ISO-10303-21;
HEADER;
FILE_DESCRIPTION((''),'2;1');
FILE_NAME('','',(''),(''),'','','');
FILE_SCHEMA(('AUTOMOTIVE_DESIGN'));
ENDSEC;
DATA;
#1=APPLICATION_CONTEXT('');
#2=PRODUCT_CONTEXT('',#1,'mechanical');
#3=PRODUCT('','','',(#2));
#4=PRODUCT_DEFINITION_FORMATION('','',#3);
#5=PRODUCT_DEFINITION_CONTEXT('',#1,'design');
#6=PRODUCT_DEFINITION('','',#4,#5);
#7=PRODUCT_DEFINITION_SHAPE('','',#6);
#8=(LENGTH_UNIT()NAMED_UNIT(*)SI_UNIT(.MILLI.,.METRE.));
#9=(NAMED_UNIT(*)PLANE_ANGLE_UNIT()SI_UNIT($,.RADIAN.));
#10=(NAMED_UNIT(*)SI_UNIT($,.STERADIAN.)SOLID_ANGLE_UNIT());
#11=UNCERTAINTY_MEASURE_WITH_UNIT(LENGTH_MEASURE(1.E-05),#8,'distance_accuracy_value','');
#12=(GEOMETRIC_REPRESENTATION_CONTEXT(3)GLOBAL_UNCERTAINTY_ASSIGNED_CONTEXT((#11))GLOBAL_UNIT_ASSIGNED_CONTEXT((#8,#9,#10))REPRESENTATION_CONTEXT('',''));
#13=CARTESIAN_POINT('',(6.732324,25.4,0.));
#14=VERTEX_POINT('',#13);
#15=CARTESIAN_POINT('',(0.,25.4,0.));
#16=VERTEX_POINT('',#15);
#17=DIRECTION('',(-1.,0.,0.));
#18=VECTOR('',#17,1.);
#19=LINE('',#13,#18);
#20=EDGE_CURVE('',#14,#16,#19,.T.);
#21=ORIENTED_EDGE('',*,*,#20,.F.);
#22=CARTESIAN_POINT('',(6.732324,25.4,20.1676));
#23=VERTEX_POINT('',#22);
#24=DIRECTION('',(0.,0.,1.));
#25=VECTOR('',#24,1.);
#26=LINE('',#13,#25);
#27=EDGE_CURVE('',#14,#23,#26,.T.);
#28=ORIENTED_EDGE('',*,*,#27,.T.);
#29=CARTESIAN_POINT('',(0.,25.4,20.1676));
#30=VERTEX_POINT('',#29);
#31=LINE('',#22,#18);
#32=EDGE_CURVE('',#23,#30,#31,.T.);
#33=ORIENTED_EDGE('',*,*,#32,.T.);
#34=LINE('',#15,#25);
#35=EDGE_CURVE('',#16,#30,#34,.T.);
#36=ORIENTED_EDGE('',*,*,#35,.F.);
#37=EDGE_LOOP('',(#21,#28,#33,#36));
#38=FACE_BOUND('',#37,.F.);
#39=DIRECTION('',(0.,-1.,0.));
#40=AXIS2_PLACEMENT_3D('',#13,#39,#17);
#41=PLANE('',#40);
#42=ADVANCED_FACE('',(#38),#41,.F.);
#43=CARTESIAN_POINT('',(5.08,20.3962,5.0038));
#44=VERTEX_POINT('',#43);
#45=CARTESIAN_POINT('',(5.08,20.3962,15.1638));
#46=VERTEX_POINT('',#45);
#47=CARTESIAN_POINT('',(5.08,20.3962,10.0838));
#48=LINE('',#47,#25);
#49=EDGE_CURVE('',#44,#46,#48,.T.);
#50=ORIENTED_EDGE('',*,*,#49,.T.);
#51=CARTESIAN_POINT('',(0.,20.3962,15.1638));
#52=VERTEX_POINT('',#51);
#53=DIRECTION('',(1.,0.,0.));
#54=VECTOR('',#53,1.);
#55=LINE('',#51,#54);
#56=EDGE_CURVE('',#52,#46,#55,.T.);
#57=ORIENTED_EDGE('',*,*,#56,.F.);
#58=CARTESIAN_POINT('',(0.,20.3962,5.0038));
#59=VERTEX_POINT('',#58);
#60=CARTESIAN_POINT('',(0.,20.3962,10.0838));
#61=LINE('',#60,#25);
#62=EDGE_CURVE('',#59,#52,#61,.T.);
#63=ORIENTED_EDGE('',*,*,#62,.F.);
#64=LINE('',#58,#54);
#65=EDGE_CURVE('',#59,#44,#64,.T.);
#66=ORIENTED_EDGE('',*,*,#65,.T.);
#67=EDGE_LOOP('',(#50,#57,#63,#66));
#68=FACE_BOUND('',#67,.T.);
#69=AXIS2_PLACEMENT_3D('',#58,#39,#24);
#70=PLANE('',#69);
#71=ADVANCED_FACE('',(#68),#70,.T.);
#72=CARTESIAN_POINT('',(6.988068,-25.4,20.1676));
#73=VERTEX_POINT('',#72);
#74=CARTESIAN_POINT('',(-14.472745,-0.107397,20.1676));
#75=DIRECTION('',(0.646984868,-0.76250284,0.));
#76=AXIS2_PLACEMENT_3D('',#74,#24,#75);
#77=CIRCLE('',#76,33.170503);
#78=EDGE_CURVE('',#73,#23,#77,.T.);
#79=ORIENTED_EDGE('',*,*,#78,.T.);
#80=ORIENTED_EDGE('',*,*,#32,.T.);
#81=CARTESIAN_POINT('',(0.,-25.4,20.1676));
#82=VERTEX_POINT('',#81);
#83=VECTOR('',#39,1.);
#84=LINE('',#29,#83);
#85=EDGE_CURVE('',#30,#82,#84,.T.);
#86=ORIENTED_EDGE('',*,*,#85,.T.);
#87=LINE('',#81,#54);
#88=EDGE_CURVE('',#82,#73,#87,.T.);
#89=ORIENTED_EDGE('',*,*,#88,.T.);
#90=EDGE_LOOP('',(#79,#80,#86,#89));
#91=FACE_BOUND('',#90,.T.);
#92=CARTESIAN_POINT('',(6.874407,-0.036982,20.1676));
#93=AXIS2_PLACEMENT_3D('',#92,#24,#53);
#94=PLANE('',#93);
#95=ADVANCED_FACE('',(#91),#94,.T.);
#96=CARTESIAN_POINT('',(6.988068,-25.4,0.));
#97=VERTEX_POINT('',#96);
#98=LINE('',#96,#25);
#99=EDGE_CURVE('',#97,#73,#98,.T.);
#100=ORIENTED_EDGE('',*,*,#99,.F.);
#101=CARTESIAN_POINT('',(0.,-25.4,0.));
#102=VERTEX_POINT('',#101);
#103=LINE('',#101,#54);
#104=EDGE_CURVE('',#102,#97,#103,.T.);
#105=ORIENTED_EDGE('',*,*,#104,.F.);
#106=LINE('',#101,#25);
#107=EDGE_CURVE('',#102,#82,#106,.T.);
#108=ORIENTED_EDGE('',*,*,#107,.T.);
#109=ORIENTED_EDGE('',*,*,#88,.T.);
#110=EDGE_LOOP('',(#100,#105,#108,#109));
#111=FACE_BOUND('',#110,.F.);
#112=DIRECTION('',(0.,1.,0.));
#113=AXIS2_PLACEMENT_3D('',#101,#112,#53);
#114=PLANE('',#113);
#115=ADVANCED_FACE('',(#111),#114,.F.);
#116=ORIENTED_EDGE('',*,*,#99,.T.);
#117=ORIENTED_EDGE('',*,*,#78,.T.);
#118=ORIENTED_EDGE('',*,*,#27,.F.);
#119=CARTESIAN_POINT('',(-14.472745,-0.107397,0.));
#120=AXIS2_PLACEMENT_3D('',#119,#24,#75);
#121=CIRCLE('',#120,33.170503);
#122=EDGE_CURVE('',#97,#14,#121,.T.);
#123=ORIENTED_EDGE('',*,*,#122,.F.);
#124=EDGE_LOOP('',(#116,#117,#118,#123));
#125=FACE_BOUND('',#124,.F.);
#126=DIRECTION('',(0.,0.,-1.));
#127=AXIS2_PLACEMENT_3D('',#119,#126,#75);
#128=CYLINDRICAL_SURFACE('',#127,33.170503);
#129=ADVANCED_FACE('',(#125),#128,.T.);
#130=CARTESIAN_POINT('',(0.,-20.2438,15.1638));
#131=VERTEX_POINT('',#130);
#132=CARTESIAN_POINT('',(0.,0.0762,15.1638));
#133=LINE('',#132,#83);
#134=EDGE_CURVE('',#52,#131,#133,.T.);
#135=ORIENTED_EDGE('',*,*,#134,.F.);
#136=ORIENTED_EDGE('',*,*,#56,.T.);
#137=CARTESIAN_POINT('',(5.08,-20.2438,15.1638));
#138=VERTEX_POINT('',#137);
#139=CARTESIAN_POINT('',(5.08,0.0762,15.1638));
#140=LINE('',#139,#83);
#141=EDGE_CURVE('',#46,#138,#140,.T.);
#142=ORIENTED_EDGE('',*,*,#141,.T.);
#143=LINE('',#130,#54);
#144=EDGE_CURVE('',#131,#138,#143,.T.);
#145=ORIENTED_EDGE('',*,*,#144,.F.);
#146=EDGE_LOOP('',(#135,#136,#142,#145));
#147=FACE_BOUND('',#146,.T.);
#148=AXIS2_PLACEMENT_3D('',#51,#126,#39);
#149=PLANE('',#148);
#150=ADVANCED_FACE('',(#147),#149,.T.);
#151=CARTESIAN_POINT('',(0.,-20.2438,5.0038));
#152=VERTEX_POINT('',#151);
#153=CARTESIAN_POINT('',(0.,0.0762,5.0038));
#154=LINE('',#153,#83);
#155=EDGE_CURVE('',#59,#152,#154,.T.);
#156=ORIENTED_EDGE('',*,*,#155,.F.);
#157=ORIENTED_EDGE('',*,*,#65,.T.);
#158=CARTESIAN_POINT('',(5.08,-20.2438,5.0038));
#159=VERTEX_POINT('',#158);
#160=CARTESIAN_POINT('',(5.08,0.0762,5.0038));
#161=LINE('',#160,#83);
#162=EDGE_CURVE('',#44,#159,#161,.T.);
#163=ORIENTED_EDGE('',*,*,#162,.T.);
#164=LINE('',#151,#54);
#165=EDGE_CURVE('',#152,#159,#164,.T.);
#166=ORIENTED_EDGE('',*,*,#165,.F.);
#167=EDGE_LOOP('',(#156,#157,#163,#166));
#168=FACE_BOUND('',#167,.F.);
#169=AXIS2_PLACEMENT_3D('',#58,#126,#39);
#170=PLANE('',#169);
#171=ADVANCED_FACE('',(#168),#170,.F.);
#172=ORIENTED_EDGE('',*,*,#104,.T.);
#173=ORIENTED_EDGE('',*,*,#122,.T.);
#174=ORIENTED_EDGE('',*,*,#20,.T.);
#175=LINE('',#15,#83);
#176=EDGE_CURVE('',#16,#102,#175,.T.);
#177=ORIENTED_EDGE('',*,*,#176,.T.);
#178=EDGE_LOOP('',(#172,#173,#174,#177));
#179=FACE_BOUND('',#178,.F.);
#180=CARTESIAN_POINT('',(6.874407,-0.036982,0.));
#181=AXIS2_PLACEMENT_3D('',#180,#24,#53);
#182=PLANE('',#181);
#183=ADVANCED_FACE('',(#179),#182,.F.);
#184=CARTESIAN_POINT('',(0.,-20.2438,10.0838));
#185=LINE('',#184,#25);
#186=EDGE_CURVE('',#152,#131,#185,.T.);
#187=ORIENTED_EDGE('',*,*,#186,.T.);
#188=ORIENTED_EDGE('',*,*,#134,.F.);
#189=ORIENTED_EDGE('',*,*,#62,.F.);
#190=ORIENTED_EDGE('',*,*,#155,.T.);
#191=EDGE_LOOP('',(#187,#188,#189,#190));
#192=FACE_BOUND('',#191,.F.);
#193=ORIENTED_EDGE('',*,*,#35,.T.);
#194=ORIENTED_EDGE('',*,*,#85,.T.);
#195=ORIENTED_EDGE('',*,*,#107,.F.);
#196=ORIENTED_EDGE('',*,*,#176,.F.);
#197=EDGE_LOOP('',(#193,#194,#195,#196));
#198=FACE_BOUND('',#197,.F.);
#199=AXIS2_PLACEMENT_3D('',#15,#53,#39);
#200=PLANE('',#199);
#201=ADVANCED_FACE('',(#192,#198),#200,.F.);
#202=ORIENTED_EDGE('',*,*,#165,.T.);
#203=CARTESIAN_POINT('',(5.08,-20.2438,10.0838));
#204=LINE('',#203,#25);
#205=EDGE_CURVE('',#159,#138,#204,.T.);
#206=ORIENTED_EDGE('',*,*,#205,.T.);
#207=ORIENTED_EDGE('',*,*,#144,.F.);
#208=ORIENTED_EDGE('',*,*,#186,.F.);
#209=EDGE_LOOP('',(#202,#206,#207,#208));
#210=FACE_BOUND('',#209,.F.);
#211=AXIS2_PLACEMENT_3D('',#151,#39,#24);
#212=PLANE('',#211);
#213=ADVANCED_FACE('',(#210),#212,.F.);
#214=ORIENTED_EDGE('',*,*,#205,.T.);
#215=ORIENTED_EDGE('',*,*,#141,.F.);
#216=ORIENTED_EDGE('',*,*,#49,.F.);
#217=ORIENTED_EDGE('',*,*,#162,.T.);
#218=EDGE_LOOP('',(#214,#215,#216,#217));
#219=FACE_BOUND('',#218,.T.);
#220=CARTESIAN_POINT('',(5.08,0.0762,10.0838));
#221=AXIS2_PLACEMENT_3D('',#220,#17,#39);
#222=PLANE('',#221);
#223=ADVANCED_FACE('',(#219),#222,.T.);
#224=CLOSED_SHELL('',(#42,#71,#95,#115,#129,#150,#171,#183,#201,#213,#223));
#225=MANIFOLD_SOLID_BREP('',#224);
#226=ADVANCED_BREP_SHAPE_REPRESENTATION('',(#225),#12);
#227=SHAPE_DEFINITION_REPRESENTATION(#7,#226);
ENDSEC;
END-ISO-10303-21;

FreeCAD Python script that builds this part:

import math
import FreeCAD as App
import Part
import Sketcher

V = App.Vector
Q = App.Units.Quantity

doc = App.newDocument("Part")
body = doc.addObject("PartDesign::Body", "Body")

# Sketch on XY plane
sketch1 = body.newObject("Sketcher::SketchObject", "Sketch")
sketch1.AttachmentSupport = (doc.getObject("XY_Plane"), [""])
sketch1.MapMode = "FlatFace"
sketch1.addGeometry([
    Part.LineSegment(V(7, 25, 0), V(0, 25, 0)),
    Part.LineSegment(V(0, 25, 0), V(0, -25, 0)),
    Part.LineSegment(V(0, -25, 0), V(7, -25, 0)),
    Part.ArcOfCircle(Part.Circle(V(-14, 0, 0), V(0, 0, 1), 33), math.radians(-50), math.radians(50)),
], False)
sketch1.addConstraint([
    Sketcher.Constraint("Coincident", 0, 2, 1, 1),
    Sketcher.Constraint("Coincident", 1, 2, 2, 1),
    Sketcher.Constraint("Coincident", 2, 2, 3, 1),
    Sketcher.Constraint("Coincident", 3, 2, 0, 1),
    Sketcher.Constraint("Horizontal", 0),
    Sketcher.Constraint("Vertical", 1),
    Sketcher.Constraint("Horizontal", 2),
    Sketcher.Constraint("Symmetric", 0, 2, 1, 2, -1, 1),
    Sketcher.Constraint("DistanceY", 1, 2, 1, 1, Q("2 in")),
    Sketcher.Constraint("Radius", 3, Q("33.170503 mm")),
    Sketcher.Constraint("DistanceX", 2, 1, 2, 2, Q("6.988068 mm")),
    Sketcher.Constraint("DistanceX", 0, 2, 0, 1, Q("6.732324 mm")),
])
pad1 = body.newObject("PartDesign::Pad", "Pad")
pad1.Profile = sketch1
pad1.Length = Q("0.794 in")

# Sketch on YZ plane
sketch2 = body.newObject("Sketcher::SketchObject", "Sketch001")
sketch2.AttachmentSupport = (doc.getObject("YZ_Plane"), [""])
sketch2.MapMode = "FlatFace"
sketch2.addGeometry([
    Part.LineSegment(V(20, 15, 0), V(20, 5, 0)),
    Part.LineSegment(V(20, 5, 0), V(-20, 5, 0)),
    Part.LineSegment(V(-20, 5, 0), V(-20, 15, 0)),
    Part.LineSegment(V(-20, 15, 0), V(20, 15, 0)),
], False)
sketch2.addConstraint([
    Sketcher.Constraint("Coincident", 0, 2, 1, 1),
    Sketcher.Constraint("Coincident", 1, 2, 2, 1),
    Sketcher.Constraint("Coincident", 2, 2, 3, 1),
    Sketcher.Constraint("Coincident", 3, 2, 0, 1),
    Sketcher.Constraint("Vertical", 0),
    Sketcher.Constraint("Horizontal", 1),
    Sketcher.Constraint("Vertical", 2),
    Sketcher.Constraint("Horizontal", 3),
    Sketcher.Constraint("DistanceX", 1, 2, 1, 1, Q("1.6 in")),
    Sketcher.Constraint("DistanceY", 0, 2, 0, 1, Q("0.4 in")),
    Sketcher.Constraint("DistanceX", -1, 1, 0, 2, Q("0.803 in")),
    Sketcher.Constraint("DistanceY", -1, 1, 0, 2, Q("0.197 in")),
])
pocket1 = body.newObject("PartDesign::Pocket", "Pocket")
pocket1.Profile = sketch2
pocket1.Length = Q("0.2 in")
pocket1.Reversed = True

doc.recompute()
